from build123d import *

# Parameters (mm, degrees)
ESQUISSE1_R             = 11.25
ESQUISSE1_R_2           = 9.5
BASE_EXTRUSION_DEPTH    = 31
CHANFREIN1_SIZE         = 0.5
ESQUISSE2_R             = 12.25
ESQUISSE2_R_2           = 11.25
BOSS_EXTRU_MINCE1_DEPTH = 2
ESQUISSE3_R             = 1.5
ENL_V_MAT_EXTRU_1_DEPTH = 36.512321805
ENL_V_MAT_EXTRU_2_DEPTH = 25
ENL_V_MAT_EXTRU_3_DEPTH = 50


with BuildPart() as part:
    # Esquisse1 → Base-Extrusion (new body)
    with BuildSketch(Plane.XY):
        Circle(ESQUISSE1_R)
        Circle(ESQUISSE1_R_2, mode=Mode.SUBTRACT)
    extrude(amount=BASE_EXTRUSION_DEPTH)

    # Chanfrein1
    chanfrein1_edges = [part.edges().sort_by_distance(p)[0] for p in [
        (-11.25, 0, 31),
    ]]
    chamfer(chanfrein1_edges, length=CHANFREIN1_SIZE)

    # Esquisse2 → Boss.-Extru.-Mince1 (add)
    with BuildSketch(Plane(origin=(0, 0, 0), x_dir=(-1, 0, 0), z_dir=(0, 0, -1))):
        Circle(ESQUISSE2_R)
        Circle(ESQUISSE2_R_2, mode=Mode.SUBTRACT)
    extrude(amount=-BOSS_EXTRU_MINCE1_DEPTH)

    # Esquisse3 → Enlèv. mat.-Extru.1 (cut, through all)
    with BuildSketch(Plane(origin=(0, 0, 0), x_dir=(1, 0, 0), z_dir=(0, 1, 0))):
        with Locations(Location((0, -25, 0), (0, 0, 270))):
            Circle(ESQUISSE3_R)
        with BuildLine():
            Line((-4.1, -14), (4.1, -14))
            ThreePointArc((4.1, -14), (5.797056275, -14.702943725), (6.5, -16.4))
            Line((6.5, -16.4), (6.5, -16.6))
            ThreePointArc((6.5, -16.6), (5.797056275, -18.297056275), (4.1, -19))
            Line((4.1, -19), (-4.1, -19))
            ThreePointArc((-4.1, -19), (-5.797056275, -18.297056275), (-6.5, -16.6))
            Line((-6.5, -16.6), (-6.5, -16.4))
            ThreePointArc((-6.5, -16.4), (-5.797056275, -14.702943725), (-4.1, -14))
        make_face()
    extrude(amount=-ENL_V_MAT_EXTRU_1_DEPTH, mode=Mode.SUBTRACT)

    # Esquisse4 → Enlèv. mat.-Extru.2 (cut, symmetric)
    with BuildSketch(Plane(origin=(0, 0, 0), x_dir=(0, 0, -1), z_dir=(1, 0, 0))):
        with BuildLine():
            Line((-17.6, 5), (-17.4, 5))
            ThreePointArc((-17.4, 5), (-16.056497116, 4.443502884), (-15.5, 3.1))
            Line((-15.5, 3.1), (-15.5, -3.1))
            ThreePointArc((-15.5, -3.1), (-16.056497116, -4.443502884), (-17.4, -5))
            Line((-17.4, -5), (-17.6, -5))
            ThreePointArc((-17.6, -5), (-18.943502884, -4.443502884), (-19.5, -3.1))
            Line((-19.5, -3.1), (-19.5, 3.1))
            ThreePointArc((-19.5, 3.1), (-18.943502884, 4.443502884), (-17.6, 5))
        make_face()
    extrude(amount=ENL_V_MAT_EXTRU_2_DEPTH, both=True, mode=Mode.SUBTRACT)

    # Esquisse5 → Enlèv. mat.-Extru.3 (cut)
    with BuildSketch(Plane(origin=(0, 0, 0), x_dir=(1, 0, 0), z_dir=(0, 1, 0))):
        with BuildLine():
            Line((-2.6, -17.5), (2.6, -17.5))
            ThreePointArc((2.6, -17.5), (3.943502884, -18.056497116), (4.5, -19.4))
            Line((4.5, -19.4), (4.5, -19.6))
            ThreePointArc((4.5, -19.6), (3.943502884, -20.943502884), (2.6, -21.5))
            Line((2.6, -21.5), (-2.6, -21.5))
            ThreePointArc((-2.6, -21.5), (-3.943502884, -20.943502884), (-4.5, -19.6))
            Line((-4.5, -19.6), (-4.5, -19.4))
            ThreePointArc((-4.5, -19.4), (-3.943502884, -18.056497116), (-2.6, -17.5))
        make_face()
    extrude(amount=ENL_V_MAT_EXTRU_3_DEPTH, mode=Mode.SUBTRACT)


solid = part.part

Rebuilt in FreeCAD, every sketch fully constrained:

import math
import FreeCAD as App
import Part
import Sketcher

V = App.Vector


def edges_at(feature, points):
    """Names of the edges that pass closest to the given points."""
    edges = feature.Shape.Edges
    near = lambda p: min(range(len(edges)), key=lambda i: edges[i].distToShape(Part.Vertex(*p))[0])
    return sorted({f"Edge{near(p) + 1}" for p in points})

doc = App.newDocument("Part")
body = doc.addObject("PartDesign::Body", "Body")

# Sketch on XY plane
sketch1 = doc.addObject("Sketcher::SketchObject", "Sketch")
body.addObject(sketch1)
sketch1.AttachmentSupport = (doc.XY_Plane, [""])
sketch1.MapMode = "FlatFace"
sketch1.addGeometry(Part.Circle(V(0, 0, 0), V(0, 0, 1), 11), False)
sketch1.addGeometry(Part.Circle(V(0, 0, 0), V(0, 0, 1), 10), False)
sketch1.addConstraint(Sketcher.Constraint("Coincident", 0, 3, -1, 1))
sketch1.addConstraint(Sketcher.Constraint("Coincident", 1, 3, -1, 1))
sketch1.addConstraint(Sketcher.Constraint("Diameter", 1, 19.0))
sketch1.addConstraint(Sketcher.Constraint("Diameter", 0, 22.5))
pad1 = doc.addObject("PartDesign::Pad", "Pad")
body.addObject(pad1)
pad1.Profile = sketch1
pad1.Length = 31
doc.recompute()

chamfer = doc.addObject("PartDesign::Chamfer", "Chamfer")
body.addObject(chamfer)
chamfer.Base = (pad1, edges_at(pad1, [(-11.25, 0, 31)]))
chamfer.Size = 0.5

# Sketch on XY plane
sketch2 = doc.addObject("Sketcher::SketchObject", "Sketch001")
body.addObject(sketch2)
sketch2.AttachmentSupport = (doc.XY_Plane, [""])
sketch2.MapMode = "FlatFace"
sketch2.addGeometry(Part.Circle(V(0, 0, 0), V(0, 0, 1), 12), False)
sketch2.addGeometry(Part.Circle(V(0, 0, 0), V(0, 0, 1), 11), False)
sketch2.addConstraint(Sketcher.Constraint("Coincident", 0, 3, -1, 1))
sketch2.addConstraint(Sketcher.Constraint("Coincident", 1, 3, -1, 1))
sketch2.addConstraint(Sketcher.Constraint("Diameter", 0, 24.5))
sketch2.addConstraint(Sketcher.Constraint("Diameter", 1, 22.5))
pad2 = doc.addObject("PartDesign::Pad", "Pad001")
body.addObject(pad2)
pad2.Profile = sketch2
pad2.Length = 2

# Sketch on XZ plane
sketch3 = doc.addObject("Sketcher::SketchObject", "Sketch002")
body.addObject(sketch3)
sketch3.AttachmentSupport = (doc.XZ_Plane, [""])
sketch3.MapMode = "FlatFace"
sketch3.addGeometry(Part.Circle(V(0, 25, 0), V(0, 0, 1), 1.5), False)
sketch3.addGeometry(Part.LineSegment(V(4.1, 14, 0), V(-4.1, 14, 0)), False)
sketch3.addGeometry(Part.ArcOfCircle(Part.Circle(V(-4.1, 16.4, 0), V(0, 0, 1), 2.4), math.radians(180), math.radians(270)), False)
sketch3.addGeometry(Part.LineSegment(V(-6.5, 16.4, 0), V(-6.5, 16.6, 0)), False)
sketch3.addGeometry(Part.ArcOfCircle(Part.Circle(V(-4.1, 16.6, 0), V(0, 0, 1), 2.4), math.radians(90), math.radians(180)), False)
sketch3.addGeometry(Part.LineSegment(V(-4.1, 19, 0), V(4.1, 19, 0)), False)
sketch3.addGeometry(Part.ArcOfCircle(Part.Circle(V(4.1, 16.6, 0), V(0, 0, 1), 2.4), math.radians(0), math.radians(90)), False)
sketch3.addGeometry(Part.LineSegment(V(6.5, 16.6, 0), V(6.5, 16.4, 0)), False)
sketch3.addGeometry(Part.ArcOfCircle(Part.Circle(V(4.1, 16.4, 0), V(0, 0, 1), 2.4), math.radians(-90), math.radians(0)), False)
sketch3.addConstraint(Sketcher.Constraint("Tangent", 1, 2, 2, 2))
sketch3.addConstraint(Sketcher.Constraint("Tangent", 2, 1, 3, 1))
sketch3.addConstraint(Sketcher.Constraint("Tangent", 3, 2, 4, 2))
sketch3.addConstraint(Sketcher.Constraint("Tangent", 4, 1, 5, 1))
sketch3.addConstraint(Sketcher.Constraint("Tangent", 5, 2, 6, 2))
sketch3.addConstraint(Sketcher.Constraint("Tangent", 6, 1, 7, 1))
sketch3.addConstraint(Sketcher.Constraint("Tangent", 7, 2, 8, 2))
sketch3.addConstraint(Sketcher.Constraint("Tangent", 8, 1, 1, 1))
sketch3.addConstraint(Sketcher.Constraint("Horizontal", 1))
sketch3.addConstraint(Sketcher.Constraint("Vertical", 3))
sketch3.addConstraint(Sketcher.Constraint("Horizontal", 5))
sketch3.addConstraint(Sketcher.Constraint("Vertical", 7))
sketch3.addConstraint(Sketcher.Constraint("Equal", 2, 4))
sketch3.addConstraint(Sketcher.Constraint("Equal", 4, 6))
sketch3.addConstraint(Sketcher.Constraint("Equal", 6, 8))
sketch3.addConstraint(Sketcher.Constraint("PointOnObject", 0, 3, -2))
sketch3.addConstraint(Sketcher.Constraint("Diameter", 0, 3.0))
sketch3.addConstraint(Sketcher.Constraint("Radius", 2, 2.4))
sketch3.addConstraint(Sketcher.Constraint("DistanceX", 1, 2, 1, 1, 8.2))
sketch3.addConstraint(Sketcher.Constraint("DistanceY", 3, 1, 3, 2, 0.2))
sketch3.addConstraint(Sketcher.Constraint("DistanceY", -1, 1, 0, 3, 25.0))
sketch3.addConstraint(Sketcher.Constraint("DistanceY", -1, 1, 1, 2, 14.0))
sketch3.addConstraint(Sketcher.Constraint("DistanceX", 2, 3, -1, 1, 4.1))
pocket1 = doc.addObject("PartDesign::Pocket", "Pocket")
body.addObject(pocket1)
pocket1.Profile = sketch3
pocket1.Type = "ThroughAll"
pocket1.Reversed = True

# Sketch on YZ plane
sketch4 = doc.addObject("Sketcher::SketchObject", "Sketch003")
body.addObject(sketch4)
sketch4.AttachmentSupport = (doc.YZ_Plane, [""])
sketch4.MapMode = "FlatFace"
sketch4.addGeometry(Part.LineSegment(V(5, 17.4, 0), V(5, 17.6, 0)), False)
sketch4.addGeometry(Part.ArcOfCircle(Part.Circle(V(3.1, 17.6, 0), V(0, 0, 1), 1.9), math.radians(0), math.radians(90)), False)
sketch4.addGeometry(Part.LineSegment(V(3.1, 19.5, 0), V(-3.1, 19.5, 0)), False)
sketch4.addGeometry(Part.ArcOfCircle(Part.Circle(V(-3.1, 17.6, 0), V(0, 0, 1), 1.9), math.radians(90), math.radians(180)), False)
sketch4.addGeometry(Part.LineSegment(V(-5, 17.6, 0), V(-5, 17.4, 0)), False)
sketch4.addGeometry(Part.ArcOfCircle(Part.Circle(V(-3.1, 17.4, 0), V(0, 0, 1), 1.9), math.radians(-180), math.radians(-90)), False)
sketch4.addGeometry(Part.LineSegment(V(-3.1, 15.5, 0), V(3.1, 15.5, 0)), False)
sketch4.addGeometry(Part.ArcOfCircle(Part.Circle(V(3.1, 17.4, 0), V(0, 0, 1), 1.9), math.radians(-90), math.radians(0)), False)
sketch4.addConstraint(Sketcher.Constraint("Tangent", 0, 2, 1, 1))
sketch4.addConstraint(Sketcher.Constraint("Tangent", 1, 2, 2, 1))
sketch4.addConstraint(Sketcher.Constraint("Tangent", 2, 2, 3, 1))
sketch4.addConstraint(Sketcher.Constraint("Tangent", 3, 2, 4, 1))
sketch4.addConstraint(Sketcher.Constraint("Tangent", 4, 2, 5, 1))
sketch4.addConstraint(Sketcher.Constraint("Tangent", 5, 2, 6, 1))
sketch4.addConstraint(Sketcher.Constraint("Tangent", 6, 2, 7, 1))
sketch4.addConstraint(Sketcher.Constraint("Tangent", 7, 2, 0, 1))
sketch4.addConstraint(Sketcher.Constraint("Vertical", 0))
sketch4.addConstraint(Sketcher.Constraint("Horizontal", 2))
sketch4.addConstraint(Sketcher.Constraint("Vertical", 4))
sketch4.addConstraint(Sketcher.Constraint("Horizontal", 6))
sketch4.addConstraint(Sketcher.Constraint("Equal", 1, 3))
sketch4.addConstraint(Sketcher.Constraint("Equal", 3, 5))
sketch4.addConstraint(Sketcher.Constraint("Equal", 5, 7))
sketch4.addConstraint(Sketcher.Constraint("Radius", 1, 1.9))
sketch4.addConstraint(Sketcher.Constraint("DistanceX", 2, 2, 2, 1, 6.2))
sketch4.addConstraint(Sketcher.Constraint("DistanceY", 0, 1, 0, 2, 0.2))
sketch4.addConstraint(Sketcher.Constraint("DistanceX", -1, 1, 0, 2, 5.0))
sketch4.addConstraint(Sketcher.Constraint("DistanceY", -1, 1, 1, 3, 17.6))
pocket2 = doc.addObject("PartDesign::Pocket", "Pocket001")
body.addObject(pocket2)
pocket2.Profile = sketch4
pocket2.Length = 50
pocket2.Midplane = True

# Sketch on XZ plane
sketch5 = doc.addObject("Sketcher::SketchObject", "Sketch004")
body.addObject(sketch5)
sketch5.AttachmentSupport = (doc.XZ_Plane, [""])
sketch5.MapMode = "FlatFace"
sketch5.addGeometry(Part.LineSegment(V(2.6, 17.5, 0), V(-2.6, 17.5, 0)), False)
sketch5.addGeometry(Part.ArcOfCircle(Part.Circle(V(-2.6, 19.4, 0), V(0, 0, 1), 1.9), math.radians(-180), math.radians(-90)), False)
sketch5.addGeometry(Part.LineSegment(V(-4.5, 19.4, 0), V(-4.5, 19.6, 0)), False)
sketch5.addGeometry(Part.ArcOfCircle(Part.Circle(V(-2.6, 19.6, 0), V(0, 0, 1), 1.9), math.radians(90), math.radians(180)), False)
sketch5.addGeometry(Part.LineSegment(V(-2.6, 21.5, 0), V(2.6, 21.5, 0)), False)
sketch5.addGeometry(Part.ArcOfCircle(Part.Circle(V(2.6, 19.6, 0), V(0, 0, 1), 1.9), math.radians(0), math.radians(90)), False)
sketch5.addGeometry(Part.LineSegment(V(4.5, 19.6, 0), V(4.5, 19.4, 0)), False)
sketch5.addGeometry(Part.ArcOfCircle(Part.Circle(V(2.6, 19.4, 0), V(0, 0, 1), 1.9), math.radians(-90), math.radians(0)), False)
sketch5.addConstraint(Sketcher.Constraint("Tangent", 0, 2, 1, 2))
sketch5.addConstraint(Sketcher.Constraint("Tangent", 1, 1, 2, 1))
sketch5.addConstraint(Sketcher.Constraint("Tangent", 2, 2, 3, 2))
sketch5.addConstraint(Sketcher.Constraint("Tangent", 3, 1, 4, 1))
sketch5.addConstraint(Sketcher.Constraint("Tangent", 4, 2, 5, 2))
sketch5.addConstraint(Sketcher.Constraint("Tangent", 5, 1, 6, 1))
sketch5.addConstraint(Sketcher.Constraint("Tangent", 6, 2, 7, 2))
sketch5.addConstraint(Sketcher.Constraint("Tangent", 7, 1, 0, 1))
sketch5.addConstraint(Sketcher.Constraint("Horizontal", 0))
sketch5.addConstraint(Sketcher.Constraint("Vertical", 2))
sketch5.addConstraint(Sketcher.Constraint("Horizontal", 4))
sketch5.addConstraint(Sketcher.Constraint("Vertical", 6))
sketch5.addConstraint(Sketcher.Constraint("Equal", 1, 3))
sketch5.addConstraint(Sketcher.Constraint("Equal", 3, 5))
sketch5.addConstraint(Sketcher.Constraint("Equal", 5, 7))
sketch5.addConstraint(Sketcher.Constraint("Radius", 1, 1.9))
sketch5.addConstraint(Sketcher.Constraint("DistanceX", 0, 2, 0, 1, 5.2))
sketch5.addConstraint(Sketcher.Constraint("DistanceY", 2, 1, 2, 2, 0.2))
sketch5.addConstraint(Sketcher.Constraint("DistanceX", 1, 3, -1, 1, 2.6))
sketch5.addConstraint(Sketcher.Constraint("DistanceY", -1, 1, 1, 3, 19.4))
pocket3 = doc.addObject("PartDesign::Pocket", "Pocket002")
body.addObject(pocket3)
pocket3.Profile = sketch5
pocket3.Length = 50

doc.recompute()
